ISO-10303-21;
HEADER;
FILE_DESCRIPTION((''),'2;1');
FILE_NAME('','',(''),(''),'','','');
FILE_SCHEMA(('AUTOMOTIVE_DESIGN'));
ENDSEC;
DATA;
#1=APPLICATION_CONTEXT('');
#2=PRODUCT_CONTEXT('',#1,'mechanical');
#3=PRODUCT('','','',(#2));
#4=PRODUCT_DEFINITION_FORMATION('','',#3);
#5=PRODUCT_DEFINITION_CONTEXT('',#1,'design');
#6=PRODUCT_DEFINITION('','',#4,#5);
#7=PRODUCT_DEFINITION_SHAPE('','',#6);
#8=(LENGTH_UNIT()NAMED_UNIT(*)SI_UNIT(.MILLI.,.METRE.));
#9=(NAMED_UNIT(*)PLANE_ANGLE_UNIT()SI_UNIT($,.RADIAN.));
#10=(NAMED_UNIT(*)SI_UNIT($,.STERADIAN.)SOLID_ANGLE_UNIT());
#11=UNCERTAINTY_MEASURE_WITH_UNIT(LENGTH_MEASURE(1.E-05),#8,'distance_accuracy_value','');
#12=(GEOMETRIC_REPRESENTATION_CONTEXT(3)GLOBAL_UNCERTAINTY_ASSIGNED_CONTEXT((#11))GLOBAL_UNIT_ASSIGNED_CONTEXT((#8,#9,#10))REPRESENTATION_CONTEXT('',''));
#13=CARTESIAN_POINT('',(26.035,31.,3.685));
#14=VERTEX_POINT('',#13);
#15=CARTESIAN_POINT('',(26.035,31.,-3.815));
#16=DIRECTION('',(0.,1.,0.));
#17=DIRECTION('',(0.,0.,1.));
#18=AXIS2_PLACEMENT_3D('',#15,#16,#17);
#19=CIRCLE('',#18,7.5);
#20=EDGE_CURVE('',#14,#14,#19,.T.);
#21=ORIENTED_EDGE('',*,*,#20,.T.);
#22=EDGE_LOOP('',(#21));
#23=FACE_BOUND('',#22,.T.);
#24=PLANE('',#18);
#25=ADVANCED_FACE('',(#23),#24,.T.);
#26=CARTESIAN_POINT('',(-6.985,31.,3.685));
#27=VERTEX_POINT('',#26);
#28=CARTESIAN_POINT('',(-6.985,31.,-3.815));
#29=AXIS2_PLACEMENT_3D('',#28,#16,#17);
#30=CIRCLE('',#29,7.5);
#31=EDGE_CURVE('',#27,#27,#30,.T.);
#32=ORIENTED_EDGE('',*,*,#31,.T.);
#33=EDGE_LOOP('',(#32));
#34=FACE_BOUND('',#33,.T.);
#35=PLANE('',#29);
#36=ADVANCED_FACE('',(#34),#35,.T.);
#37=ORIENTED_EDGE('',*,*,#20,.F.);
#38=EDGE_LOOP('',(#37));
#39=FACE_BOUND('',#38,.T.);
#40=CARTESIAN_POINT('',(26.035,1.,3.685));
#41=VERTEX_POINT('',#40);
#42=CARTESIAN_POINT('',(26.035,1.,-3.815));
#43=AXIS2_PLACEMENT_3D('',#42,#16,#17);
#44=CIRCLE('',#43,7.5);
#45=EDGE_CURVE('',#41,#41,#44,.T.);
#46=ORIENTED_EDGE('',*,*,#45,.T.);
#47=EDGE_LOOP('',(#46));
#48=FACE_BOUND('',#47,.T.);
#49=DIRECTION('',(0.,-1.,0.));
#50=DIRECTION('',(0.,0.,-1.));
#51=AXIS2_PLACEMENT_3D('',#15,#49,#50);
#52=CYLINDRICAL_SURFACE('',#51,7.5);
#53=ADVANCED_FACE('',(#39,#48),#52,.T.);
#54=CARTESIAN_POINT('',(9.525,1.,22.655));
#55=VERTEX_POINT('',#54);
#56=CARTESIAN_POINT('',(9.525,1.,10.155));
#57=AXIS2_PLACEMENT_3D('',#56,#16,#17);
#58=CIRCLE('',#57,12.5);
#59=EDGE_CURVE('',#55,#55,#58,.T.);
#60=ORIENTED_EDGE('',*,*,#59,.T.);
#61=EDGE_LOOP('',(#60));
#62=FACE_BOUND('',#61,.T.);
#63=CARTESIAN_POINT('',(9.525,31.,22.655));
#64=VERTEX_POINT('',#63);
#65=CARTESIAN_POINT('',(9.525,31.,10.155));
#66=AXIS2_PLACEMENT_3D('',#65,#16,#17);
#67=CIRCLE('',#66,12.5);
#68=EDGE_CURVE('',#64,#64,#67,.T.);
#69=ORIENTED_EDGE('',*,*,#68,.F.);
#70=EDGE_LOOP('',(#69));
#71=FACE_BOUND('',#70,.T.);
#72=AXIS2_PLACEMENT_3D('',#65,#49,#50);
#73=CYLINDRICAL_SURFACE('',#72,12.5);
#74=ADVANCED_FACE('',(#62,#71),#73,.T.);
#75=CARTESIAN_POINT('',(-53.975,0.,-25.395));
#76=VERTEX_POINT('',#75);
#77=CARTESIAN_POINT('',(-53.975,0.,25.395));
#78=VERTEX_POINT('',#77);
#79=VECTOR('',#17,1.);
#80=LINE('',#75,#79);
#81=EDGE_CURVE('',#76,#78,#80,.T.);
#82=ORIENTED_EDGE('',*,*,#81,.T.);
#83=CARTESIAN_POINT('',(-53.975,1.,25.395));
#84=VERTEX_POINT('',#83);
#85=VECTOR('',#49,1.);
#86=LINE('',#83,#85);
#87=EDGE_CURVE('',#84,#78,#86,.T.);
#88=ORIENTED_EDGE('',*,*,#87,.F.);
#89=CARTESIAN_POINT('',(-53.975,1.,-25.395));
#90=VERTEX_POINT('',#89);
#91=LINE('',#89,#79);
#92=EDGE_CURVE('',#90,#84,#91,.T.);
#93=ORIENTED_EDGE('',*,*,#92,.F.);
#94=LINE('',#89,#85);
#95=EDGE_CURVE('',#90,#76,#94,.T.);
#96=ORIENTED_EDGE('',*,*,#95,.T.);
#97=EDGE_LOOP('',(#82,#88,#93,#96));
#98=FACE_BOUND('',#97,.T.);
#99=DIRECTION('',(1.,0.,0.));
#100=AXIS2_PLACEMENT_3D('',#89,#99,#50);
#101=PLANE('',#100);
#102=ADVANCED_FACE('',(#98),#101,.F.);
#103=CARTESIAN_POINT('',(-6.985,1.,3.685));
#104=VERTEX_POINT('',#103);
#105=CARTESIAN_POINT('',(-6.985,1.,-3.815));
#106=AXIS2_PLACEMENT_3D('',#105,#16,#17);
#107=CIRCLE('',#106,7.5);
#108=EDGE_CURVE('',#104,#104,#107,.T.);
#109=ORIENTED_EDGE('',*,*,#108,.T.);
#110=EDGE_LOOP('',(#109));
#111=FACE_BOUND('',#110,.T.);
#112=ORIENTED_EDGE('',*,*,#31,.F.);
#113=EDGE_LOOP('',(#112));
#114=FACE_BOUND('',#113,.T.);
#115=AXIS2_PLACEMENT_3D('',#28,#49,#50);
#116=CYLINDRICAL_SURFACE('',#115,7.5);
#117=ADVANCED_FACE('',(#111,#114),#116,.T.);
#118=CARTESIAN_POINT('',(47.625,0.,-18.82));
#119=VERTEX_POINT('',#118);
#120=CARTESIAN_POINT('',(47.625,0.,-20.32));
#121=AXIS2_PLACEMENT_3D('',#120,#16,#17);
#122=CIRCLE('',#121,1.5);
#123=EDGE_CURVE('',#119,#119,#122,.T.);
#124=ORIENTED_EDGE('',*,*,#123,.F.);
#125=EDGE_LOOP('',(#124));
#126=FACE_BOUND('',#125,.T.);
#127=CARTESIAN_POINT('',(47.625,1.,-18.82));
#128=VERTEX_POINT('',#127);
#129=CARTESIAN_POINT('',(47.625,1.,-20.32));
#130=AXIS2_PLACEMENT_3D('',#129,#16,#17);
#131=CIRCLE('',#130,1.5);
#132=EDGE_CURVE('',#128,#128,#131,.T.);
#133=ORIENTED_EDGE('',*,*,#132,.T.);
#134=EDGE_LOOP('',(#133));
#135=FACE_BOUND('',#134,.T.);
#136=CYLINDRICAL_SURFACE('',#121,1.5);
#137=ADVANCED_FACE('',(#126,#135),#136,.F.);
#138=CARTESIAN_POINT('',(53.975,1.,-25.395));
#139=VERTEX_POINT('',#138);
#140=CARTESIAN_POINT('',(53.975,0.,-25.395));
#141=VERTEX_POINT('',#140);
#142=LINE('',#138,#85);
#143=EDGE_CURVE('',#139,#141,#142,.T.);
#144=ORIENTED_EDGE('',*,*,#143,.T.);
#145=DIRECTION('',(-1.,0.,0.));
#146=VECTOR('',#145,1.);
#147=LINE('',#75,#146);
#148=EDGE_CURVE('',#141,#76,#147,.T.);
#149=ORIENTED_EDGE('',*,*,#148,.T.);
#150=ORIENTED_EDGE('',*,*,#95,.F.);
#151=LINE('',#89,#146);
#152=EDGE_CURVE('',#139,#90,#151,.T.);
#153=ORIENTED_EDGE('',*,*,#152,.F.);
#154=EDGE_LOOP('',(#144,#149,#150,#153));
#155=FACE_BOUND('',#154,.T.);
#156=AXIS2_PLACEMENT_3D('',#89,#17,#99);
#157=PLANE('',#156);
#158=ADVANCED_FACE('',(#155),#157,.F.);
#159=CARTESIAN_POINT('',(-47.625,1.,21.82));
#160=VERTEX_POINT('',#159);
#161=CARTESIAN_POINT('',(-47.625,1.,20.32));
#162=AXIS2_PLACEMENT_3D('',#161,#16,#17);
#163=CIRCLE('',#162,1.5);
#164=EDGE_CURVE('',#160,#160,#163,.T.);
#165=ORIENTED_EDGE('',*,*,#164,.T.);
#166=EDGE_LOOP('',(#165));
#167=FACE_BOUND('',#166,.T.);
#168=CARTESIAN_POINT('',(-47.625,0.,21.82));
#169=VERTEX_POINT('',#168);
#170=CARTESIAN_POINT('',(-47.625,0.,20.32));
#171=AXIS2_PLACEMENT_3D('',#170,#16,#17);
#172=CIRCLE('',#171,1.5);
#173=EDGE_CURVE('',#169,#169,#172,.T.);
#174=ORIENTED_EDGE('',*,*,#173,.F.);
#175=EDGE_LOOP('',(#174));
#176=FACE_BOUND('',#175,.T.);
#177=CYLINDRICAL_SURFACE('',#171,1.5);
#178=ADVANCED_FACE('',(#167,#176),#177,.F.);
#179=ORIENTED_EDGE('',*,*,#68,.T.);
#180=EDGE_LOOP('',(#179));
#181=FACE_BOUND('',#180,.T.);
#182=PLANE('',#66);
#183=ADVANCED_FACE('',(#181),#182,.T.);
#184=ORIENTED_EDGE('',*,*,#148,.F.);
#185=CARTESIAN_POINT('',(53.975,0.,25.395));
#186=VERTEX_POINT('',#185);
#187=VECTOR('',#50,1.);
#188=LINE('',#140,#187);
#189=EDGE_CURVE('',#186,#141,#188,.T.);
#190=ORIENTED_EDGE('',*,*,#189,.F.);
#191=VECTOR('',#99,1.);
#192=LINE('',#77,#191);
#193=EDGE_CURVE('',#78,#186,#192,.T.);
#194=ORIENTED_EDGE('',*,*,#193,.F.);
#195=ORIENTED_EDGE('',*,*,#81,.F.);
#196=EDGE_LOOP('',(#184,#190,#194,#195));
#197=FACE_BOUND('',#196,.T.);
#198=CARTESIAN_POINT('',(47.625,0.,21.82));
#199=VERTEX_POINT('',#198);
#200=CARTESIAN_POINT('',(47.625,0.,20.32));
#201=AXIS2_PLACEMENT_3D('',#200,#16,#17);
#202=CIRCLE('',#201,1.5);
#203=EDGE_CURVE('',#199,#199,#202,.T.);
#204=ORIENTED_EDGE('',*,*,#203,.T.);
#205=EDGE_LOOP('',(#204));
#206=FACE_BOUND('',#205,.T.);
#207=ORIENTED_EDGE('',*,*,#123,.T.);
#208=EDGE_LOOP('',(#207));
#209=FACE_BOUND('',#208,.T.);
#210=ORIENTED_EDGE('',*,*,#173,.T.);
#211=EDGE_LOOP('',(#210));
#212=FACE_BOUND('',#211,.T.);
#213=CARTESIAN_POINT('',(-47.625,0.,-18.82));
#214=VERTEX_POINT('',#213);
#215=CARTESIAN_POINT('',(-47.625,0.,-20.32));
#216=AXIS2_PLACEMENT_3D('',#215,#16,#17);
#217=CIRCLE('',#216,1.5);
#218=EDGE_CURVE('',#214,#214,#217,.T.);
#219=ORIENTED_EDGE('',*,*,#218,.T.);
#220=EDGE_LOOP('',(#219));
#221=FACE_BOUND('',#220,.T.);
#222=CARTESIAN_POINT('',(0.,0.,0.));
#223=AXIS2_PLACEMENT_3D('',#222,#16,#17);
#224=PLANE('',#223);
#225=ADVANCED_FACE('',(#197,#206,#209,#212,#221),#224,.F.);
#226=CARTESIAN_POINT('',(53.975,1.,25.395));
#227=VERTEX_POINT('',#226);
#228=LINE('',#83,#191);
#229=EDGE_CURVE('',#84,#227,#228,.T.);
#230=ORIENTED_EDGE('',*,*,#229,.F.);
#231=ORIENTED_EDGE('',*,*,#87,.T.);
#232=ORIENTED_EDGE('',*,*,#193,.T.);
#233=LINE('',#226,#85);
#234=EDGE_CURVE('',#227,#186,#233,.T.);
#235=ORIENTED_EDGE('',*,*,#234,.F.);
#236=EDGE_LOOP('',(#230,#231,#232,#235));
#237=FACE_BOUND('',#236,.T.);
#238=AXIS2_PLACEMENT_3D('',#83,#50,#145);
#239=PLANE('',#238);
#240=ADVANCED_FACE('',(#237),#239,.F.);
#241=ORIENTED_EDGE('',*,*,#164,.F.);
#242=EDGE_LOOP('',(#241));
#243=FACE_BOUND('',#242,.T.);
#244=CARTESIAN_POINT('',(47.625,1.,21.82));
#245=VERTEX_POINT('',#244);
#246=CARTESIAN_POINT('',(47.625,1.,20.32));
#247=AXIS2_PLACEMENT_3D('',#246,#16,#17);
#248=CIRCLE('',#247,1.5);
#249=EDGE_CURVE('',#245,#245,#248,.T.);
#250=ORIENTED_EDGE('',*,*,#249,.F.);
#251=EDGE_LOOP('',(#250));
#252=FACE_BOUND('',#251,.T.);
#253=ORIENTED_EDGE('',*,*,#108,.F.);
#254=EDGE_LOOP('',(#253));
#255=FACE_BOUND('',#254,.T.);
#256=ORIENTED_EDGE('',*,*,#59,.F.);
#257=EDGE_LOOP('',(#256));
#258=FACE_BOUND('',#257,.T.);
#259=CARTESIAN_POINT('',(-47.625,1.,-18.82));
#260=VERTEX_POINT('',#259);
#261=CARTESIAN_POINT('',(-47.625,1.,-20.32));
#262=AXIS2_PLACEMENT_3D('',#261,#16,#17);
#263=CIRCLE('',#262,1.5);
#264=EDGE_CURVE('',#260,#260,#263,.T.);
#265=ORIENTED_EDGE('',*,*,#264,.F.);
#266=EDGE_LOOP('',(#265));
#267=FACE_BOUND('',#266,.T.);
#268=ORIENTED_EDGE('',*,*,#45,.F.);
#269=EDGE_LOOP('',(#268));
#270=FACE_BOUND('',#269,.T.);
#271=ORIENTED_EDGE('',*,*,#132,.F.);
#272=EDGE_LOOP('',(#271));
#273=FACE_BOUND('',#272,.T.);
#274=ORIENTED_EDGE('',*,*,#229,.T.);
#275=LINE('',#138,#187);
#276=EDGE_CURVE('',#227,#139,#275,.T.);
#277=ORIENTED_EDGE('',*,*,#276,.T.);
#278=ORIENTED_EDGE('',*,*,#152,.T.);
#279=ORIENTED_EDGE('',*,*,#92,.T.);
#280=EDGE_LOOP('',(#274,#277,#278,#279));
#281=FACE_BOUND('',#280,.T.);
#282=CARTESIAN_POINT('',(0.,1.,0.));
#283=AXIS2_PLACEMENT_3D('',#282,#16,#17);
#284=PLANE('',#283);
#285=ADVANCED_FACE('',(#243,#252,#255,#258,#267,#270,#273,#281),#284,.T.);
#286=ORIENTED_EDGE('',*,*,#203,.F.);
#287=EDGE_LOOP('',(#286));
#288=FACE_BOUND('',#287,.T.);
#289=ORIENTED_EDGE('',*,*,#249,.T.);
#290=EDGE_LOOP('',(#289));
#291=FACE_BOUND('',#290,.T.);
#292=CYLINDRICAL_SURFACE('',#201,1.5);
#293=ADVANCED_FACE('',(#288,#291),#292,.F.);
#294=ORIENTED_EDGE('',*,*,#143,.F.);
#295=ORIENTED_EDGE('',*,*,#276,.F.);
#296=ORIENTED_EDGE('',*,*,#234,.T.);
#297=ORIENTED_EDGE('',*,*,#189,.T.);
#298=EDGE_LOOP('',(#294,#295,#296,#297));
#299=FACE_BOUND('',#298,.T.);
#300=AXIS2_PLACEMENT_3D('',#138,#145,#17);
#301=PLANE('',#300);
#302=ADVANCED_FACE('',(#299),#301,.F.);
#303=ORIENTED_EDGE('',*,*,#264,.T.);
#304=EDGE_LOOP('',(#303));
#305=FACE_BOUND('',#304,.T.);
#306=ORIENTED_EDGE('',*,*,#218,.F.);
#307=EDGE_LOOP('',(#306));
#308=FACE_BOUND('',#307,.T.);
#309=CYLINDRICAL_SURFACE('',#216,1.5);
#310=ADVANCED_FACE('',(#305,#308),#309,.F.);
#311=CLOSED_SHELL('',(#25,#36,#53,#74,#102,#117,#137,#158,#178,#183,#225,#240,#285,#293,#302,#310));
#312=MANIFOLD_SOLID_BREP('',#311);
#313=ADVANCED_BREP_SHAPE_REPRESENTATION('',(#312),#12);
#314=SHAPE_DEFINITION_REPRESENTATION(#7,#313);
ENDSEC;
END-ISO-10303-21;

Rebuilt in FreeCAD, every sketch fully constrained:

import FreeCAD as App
import Part
import Sketcher

V = App.Vector

doc = App.newDocument("Part")
body = doc.addObject("PartDesign::Body", "Body")

sketch1 = body.newObject("Sketcher::SketchObject", "Sketch")
sketch1.AttachmentSupport = (doc.getObject("XZ_Plane"), [""])
sketch1.MapMode = "FlatFace"
sketch1.addGeometry(Part.LineSegment(V(-54, -25, 0), V(-54, 25, 0)), False)
sketch1.addGeometry(Part.LineSegment(V(-54, 25, 0), V(54, 25, 0)), False)
sketch1.addGeometry(Part.LineSegment(V(54, 25, 0), V(54, -25, 0)), False)
sketch1.addGeometry(Part.LineSegment(V(54, -25, 0), V(-54, -25, 0)), False)
sketch1.addConstraint(Sketcher.Constraint("Coincident", 0, 2, 1, 1))
sketch1.addConstraint(Sketcher.Constraint("Coincident", 1, 2, 2, 1))
sketch1.addConstraint(Sketcher.Constraint("Coincident", 2, 2, 3, 1))
sketch1.addConstraint(Sketcher.Constraint("Coincident", 3, 2, 0, 1))
sketch1.addConstraint(Sketcher.Constraint("Vertical", 0))
sketch1.addConstraint(Sketcher.Constraint("Horizontal", 1))
sketch1.addConstraint(Sketcher.Constraint("Vertical", 2))
sketch1.addConstraint(Sketcher.Constraint("Horizontal", 3))
sketch1.addConstraint(Sketcher.Constraint("Symmetric", 0, 2, 2, 2, -1, 1))
sketch1.addConstraint(Sketcher.Constraint("DistanceX", 1, 1, 1, 2, 107.95))
sketch1.addConstraint(Sketcher.Constraint("DistanceY", 0, 1, 0, 2, 50.79))
pad1 = body.newObject("PartDesign::Pad", "Pad")
pad1.Profile = sketch1
pad1.Length = 1
pad1.Reversed = True

sketch2 = body.newObject("Sketcher::SketchObject", "Sketch001")
sketch2.AttachmentSupport = (doc.getObject("XZ_Plane"), [""])
sketch2.MapMode = "FlatFace"
sketch2.AttachmentOffset = App.Placement(V(0, 0, -1), App.Rotation())
sketch2.addGeometry(Part.Circle(V(-47.6, -20.3, 0), V(0, 0, 1), 1.5), False)
sketch2.addGeometry(Part.Circle(V(47.6, -20.3, 0), V(0, 0, 1), 1.5), False)
sketch2.addGeometry(Part.Circle(V(47.6, 20.3, 0), V(0, 0, 1), 1.5), False)
sketch2.addGeometry(Part.Circle(V(-47.6, 20.3, 0), V(0, 0, 1), 1.5), False)
sketch2.addConstraint(Sketcher.Constraint("Equal", 0, 1))
sketch2.addConstraint(Sketcher.Constraint("Equal", 1, 2))
sketch2.addConstraint(Sketcher.Constraint("Equal", 2, 3))
sketch2.addConstraint(Sketcher.Constraint("Symmetric", 0, 3, 2, 3, -1, 1))
sketch2.addConstraint(Sketcher.Constraint("Symmetric", 1, 3, 3, 3, -1, 1))
sketch2.addConstraint(Sketcher.Constraint("Symmetric", 0, 3, 1, 3, -2))
sketch2.addConstraint(Sketcher.Constraint("Diameter", 0, 3.0))
sketch2.addConstraint(Sketcher.Constraint("DistanceY", 0, 3, -1, 1, 20.32))
sketch2.addConstraint(Sketcher.Constraint("DistanceX", 0, 3, 1, 3, 95.25))
pocket1 = body.newObject("PartDesign::Pocket", "Pocket")
pocket1.Profile = sketch2
pocket1.Type = "ThroughAll"
pocket1.Reversed = True

sketch3 = body.newObject("Sketcher::SketchObject", "Sketch002")
sketch3.AttachmentSupport = (doc.getObject("XZ_Plane"), [""])
sketch3.MapMode = "FlatFace"
sketch3.AttachmentOffset = App.Placement(V(0, 0, -1), App.Rotation())
sketch3.addGeometry(Part.Circle(V(26, -4, 0), V(0, 0, 1), 8), False)
sketch3.addGeometry(Part.Circle(V(-7, -4, 0), V(0, 0, 1), 8), False)
sketch3.addGeometry(Part.Circle(V(10, 10, 0), V(0, 0, 1), 12), False)
sketch3.addConstraint(Sketcher.Constraint("Equal", 0, 1))
sketch3.addConstraint(Sketcher.Constraint("Horizontal", 0, 3, 1, 3))
sketch3.addConstraint(Sketcher.Constraint("Diameter", 0, 15.0))
sketch3.addConstraint(Sketcher.Constraint("Diameter", 2, 25.0))
sketch3.addConstraint(Sketcher.Constraint("DistanceX", 1, 3, 0, 3, 33.02))
sketch3.addConstraint(Sketcher.Constraint("DistanceX", 2, 3, 0, 3, 16.51))
sketch3.addConstraint(Sketcher.Constraint("DistanceY", 0, 3, 2, 3, 13.97))
sketch3.addConstraint(Sketcher.Constraint("DistanceX", -1, 1, 0, 3, 26.035))
sketch3.addConstraint(Sketcher.Constraint("DistanceY", 0, 3, -1, 1, 3.815))
pad2 = body.newObject("PartDesign::Pad", "Pad001")
pad2.Profile = sketch3
pad2.Length = 30
pad2.Reversed = True

doc.recompute()
